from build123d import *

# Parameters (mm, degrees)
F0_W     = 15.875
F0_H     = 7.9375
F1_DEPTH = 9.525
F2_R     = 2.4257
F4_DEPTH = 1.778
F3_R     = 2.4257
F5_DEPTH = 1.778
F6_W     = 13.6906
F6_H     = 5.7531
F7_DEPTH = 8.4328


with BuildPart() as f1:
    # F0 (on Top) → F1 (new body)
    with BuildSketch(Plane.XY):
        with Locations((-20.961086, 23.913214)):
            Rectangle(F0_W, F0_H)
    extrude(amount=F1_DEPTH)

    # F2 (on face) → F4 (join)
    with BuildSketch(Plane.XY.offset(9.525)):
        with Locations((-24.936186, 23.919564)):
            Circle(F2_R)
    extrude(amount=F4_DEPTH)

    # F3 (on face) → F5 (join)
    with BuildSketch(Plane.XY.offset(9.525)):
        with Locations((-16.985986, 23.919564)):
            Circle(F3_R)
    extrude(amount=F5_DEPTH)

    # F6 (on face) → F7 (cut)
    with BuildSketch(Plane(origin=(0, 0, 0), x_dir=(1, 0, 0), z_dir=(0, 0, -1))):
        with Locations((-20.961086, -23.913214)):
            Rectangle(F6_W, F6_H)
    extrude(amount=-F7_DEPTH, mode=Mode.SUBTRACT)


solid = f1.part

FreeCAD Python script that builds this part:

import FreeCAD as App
import Part
import Sketcher
from FreeCAD import Vector
Q = App.Units.Quantity


def add_polygon(sketch, points):
    """Adds a closed chain of lines whose ends are joined by coincident constraints."""
    first, n = sketch.GeometryCount, len(points)
    for a, b in zip(points, points[1:] + points[:1]):
        sketch.addGeometry(Part.LineSegment(App.Vector(*a, 0), App.Vector(*b, 0)), False)
    for i in range(n):
        sketch.addConstraint(Sketcher.Constraint("Coincident", first + i, 2, first + (i + 1) % n, 1))

doc = App.newDocument("Part")
body = doc.addObject("PartDesign::Body", "Body")

# Sketch on XY plane
sketch1 = body.newObject("Sketcher::SketchObject", "Sketch")
sketch1.AttachmentSupport = (doc.getObject("XY_Plane"), [""])
sketch1.MapMode = "FlatFace"
add_polygon(sketch1, [(-29, 28), (-29, 20), (-13, 20), (-13, 28)])  # lines 0-3
sketch1.addConstraint([
    Sketcher.Constraint("Vertical", 0),
    Sketcher.Constraint("Horizontal", 1),
    Sketcher.Constraint("Vertical", 2),
    Sketcher.Constraint("Horizontal", 3),
    Sketcher.Constraint("DistanceX", 1, 1, 1, 2, Q("0.625 in")),
    Sketcher.Constraint("DistanceY", 0, 2, 0, 1, Q("0.3125 in")),
    Sketcher.Constraint("DistanceX", 0, 2, -1, 1, Q("28.898586 mm")),
    Sketcher.Constraint("DistanceY", -1, 1, 0, 2, Q("19.944464 mm")),
])
pad1 = body.newObject("PartDesign::Pad", "Pad")
pad1.Profile = sketch1
pad1.Length = Q("0.375 in")

# Sketch on XY plane
sketch2 = body.newObject("Sketcher::SketchObject", "Sketch001")
sketch2.AttachmentSupport = (doc.getObject("XY_Plane"), [""])
sketch2.MapMode = "FlatFace"
sketch2.AttachmentOffset = App.Placement(Vector(0, 0, 0.375 * 25.4), App.Rotation())
sketch2.addGeometry(Part.Circle(Vector(-24.9, 23.9, 0), Vector(0, 0, 1), 2.4), False)
sketch2.addConstraint([
    Sketcher.Constraint("Diameter", 0, Q("0.191 in")),
    Sketcher.Constraint("DistanceX", 0, 3, -1, 1, Q("24.936186 mm")),
    Sketcher.Constraint("DistanceY", -1, 1, 0, 3, Q("23.919564 mm")),
])
pad2 = body.newObject("PartDesign::Pad", "Pad001")
pad2.Profile = sketch2
pad2.Length = Q("0.07 in")

# Sketch on XY plane
sketch3 = body.newObject("Sketcher::SketchObject", "Sketch002")
sketch3.AttachmentSupport = (doc.getObject("XY_Plane"), [""])
sketch3.MapMode = "FlatFace"
sketch3.AttachmentOffset = App.Placement(Vector(0, 0, 0.375 * 25.4), App.Rotation())
sketch3.addGeometry(Part.Circle(Vector(-17, 23.9, 0), Vector(0, 0, 1), 2.4), False)
sketch3.addConstraint([
    Sketcher.Constraint("Diameter", 0, Q("0.191 in")),
    Sketcher.Constraint("DistanceX", 0, 3, -1, 1, Q("16.985986 mm")),
    Sketcher.Constraint("DistanceY", -1, 1, 0, 3, Q("23.919564 mm")),
])
pad3 = body.newObject("PartDesign::Pad", "Pad002")
pad3.Profile = sketch3
pad3.Length = Q("0.07 in")

# Sketch on XY plane
sketch4 = body.newObject("Sketcher::SketchObject", "Sketch003")
sketch4.AttachmentSupport = (doc.getObject("XY_Plane"), [""])
sketch4.MapMode = "FlatFace"
add_polygon(sketch4, [(-28, 21), (-28, 27), (-14, 27), (-14, 21)])  # lines 0-3
sketch4.addConstraint([
    Sketcher.Constraint("Vertical", 0),
    Sketcher.Constraint("Horizontal", 1),
    Sketcher.Constraint("Vertical", 2),
    Sketcher.Constraint("Horizontal", 3),
    Sketcher.Constraint("DistanceX", 1, 1, 1, 2, Q("0.539 in")),
    Sketcher.Constraint("DistanceY", 0, 1, 0, 2, Q("0.2265 in")),
    Sketcher.Constraint("DistanceX", 0, 2, -1, 1, Q("27.806386 mm")),
    Sketcher.Constraint("DistanceY", -1, 1, 0, 2, Q("26.789764 mm")),
])
pocket1 = body.newObject("PartDesign::Pocket", "Pocket")
pocket1.Profile = sketch4
pocket1.Length = Q("0.332 in")
pocket1.Reversed = True

doc.recompute()
